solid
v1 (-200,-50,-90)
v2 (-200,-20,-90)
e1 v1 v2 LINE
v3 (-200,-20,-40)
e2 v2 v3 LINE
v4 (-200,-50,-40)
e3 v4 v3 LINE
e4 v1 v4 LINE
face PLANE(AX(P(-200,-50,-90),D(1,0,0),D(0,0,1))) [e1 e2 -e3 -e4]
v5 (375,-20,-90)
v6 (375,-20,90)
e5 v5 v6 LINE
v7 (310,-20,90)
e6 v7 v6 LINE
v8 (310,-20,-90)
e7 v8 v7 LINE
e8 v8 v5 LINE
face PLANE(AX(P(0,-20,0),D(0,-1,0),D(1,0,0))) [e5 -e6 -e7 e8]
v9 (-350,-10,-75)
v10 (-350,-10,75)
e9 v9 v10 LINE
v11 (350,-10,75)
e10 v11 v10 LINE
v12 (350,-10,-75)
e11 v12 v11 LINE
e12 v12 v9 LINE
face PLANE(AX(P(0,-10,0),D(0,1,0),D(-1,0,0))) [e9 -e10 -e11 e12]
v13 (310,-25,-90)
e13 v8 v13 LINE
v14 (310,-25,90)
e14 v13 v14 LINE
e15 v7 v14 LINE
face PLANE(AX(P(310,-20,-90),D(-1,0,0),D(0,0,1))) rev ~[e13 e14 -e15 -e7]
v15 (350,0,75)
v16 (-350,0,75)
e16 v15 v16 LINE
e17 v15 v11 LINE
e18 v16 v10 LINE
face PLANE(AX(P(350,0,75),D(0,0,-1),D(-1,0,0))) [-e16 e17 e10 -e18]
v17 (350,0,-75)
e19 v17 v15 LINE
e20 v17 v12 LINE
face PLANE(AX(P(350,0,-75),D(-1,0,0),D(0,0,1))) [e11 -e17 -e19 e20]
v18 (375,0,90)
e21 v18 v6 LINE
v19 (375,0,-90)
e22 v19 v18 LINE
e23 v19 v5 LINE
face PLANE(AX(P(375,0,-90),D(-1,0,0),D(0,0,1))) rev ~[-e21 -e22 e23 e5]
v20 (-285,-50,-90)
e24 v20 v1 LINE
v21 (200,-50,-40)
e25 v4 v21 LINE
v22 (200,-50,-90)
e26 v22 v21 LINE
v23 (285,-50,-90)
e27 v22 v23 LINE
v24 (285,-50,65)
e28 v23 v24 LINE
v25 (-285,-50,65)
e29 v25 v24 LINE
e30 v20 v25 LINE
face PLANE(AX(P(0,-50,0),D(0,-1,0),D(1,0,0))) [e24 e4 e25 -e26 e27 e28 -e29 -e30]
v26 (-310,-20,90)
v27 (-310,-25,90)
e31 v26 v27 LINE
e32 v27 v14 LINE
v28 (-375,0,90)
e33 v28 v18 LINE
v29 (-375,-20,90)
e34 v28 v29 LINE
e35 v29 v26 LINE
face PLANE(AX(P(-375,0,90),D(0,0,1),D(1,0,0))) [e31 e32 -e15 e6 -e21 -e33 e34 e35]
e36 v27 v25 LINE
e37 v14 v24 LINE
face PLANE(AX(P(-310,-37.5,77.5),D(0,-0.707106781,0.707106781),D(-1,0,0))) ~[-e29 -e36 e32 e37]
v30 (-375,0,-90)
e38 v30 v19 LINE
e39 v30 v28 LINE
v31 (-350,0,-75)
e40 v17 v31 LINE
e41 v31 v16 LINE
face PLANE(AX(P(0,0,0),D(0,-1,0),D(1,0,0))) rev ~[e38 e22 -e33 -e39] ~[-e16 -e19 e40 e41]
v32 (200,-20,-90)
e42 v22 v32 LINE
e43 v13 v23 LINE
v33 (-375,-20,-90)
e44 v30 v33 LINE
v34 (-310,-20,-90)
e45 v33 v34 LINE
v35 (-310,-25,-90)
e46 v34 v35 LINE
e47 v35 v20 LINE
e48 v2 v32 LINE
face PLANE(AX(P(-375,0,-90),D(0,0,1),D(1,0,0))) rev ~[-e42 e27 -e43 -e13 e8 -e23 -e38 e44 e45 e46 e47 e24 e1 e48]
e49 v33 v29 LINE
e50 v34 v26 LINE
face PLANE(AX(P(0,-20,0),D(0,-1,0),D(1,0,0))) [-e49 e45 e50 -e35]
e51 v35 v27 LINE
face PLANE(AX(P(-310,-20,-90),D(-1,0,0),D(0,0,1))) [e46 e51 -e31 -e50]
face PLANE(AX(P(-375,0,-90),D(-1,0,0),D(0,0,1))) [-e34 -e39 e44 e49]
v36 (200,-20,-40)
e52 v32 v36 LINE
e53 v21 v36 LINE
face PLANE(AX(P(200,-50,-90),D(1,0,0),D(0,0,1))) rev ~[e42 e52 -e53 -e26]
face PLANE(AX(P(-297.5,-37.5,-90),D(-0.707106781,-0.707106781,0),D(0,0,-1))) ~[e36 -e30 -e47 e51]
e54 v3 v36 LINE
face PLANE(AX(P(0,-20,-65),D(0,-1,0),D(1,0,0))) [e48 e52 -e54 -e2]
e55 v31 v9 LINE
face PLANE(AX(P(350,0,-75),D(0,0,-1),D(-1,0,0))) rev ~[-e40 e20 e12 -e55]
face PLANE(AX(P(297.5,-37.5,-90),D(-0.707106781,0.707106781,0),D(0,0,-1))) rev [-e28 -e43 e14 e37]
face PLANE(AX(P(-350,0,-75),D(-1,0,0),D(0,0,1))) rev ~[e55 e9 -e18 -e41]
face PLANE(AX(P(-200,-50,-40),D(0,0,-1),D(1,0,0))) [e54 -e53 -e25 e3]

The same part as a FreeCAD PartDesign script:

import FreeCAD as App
import Part
import Sketcher

V = App.Vector


def edges_at(feature, points):
    """Names of the edges that pass closest to the given points."""
    edges = feature.Shape.Edges
    near = lambda p: min(range(len(edges)), key=lambda i: edges[i].distToShape(Part.Vertex(*p))[0])
    return sorted({f"Edge{near(p) + 1}" for p in points})

doc = App.newDocument("Part")
params = doc.addObject("Spreadsheet::Sheet", "Params")
for row, (alias, value) in enumerate([
    ("sketch1_width", "750 mm"),
    ("sketch1_height", "180 mm"),
    ("pad1_length", "20 mm"),
    ("sketch2_width", "620 mm"),
    ("sketch2_height", "180 mm"),
    ("pad2_length", "30 mm"),
    ("chamfer_size", "25 mm"),
    ("sketch3_width", "400 mm"),
    ("sketch3_height", "50 mm"),
    ("pocket1_length", "30 mm"),
    ("sketch4_width", "700 mm"),
    ("sketch4_height", "150 mm"),
    ("pocket2_length", "10 mm"),
], start=1):
    params.set(f"A{row}", alias)
    params.set(f"B{row}", "=" + value)
    params.setAlias(f"B{row}", alias)

body = doc.addObject("PartDesign::Body", "Body")

sketch1 = body.newObject("Sketcher::SketchObject", "Sketch")
sketch1.AttachmentSupport = (doc.getObject("XZ_Plane"), [""])
sketch1.MapMode = "FlatFace"
sketch1.addGeometry([
    Part.LineSegment(V(-375, 90, 0), V(-375, -90, 0)),
    Part.LineSegment(V(-375, -90, 0), V(375, -90, 0)),
    Part.LineSegment(V(375, -90, 0), V(375, 90, 0)),
    Part.LineSegment(V(375, 90, 0), V(-375, 90, 0)),
], False)
sketch1.addConstraint([
    Sketcher.Constraint("Coincident", 0, 2, 1, 1),
    Sketcher.Constraint("Coincident", 1, 2, 2, 1),
    Sketcher.Constraint("Coincident", 2, 2, 3, 1),
    Sketcher.Constraint("Coincident", 3, 2, 0, 1),
    Sketcher.Constraint("Vertical", 0),
    Sketcher.Constraint("Horizontal", 1),
    Sketcher.Constraint("Vertical", 2),
    Sketcher.Constraint("Horizontal", 3),
    Sketcher.Constraint("Symmetric", 0, 2, 2, 2, -1, 1),
    Sketcher.Constraint("DistanceX", 1, 1, 1, 2, 750.0),
    Sketcher.Constraint("DistanceY", 0, 2, 0, 1, 180.0),
])
sketch1.setExpression("Constraints[9]", "Params.sketch1_width")
sketch1.setExpression("Constraints[10]", "Params.sketch1_height")
pad1 = body.newObject("PartDesign::Pad", "Pad")
pad1.Profile = sketch1
pad1.setExpression("Length", "Params.pad1_length")

sketch2 = body.newObject("Sketcher::SketchObject", "Sketch001")
sketch2.AttachmentSupport = (doc.getObject("XZ_Plane"), [""])
sketch2.MapMode = "FlatFace"
sketch2.AttachmentOffset = App.Placement(V(0, 0, 20), App.Rotation())
sketch2.addGeometry([
    Part.LineSegment(V(-310, 90, 0), V(-310, -90, 0)),
    Part.LineSegment(V(-310, -90, 0), V(310, -90, 0)),
    Part.LineSegment(V(310, -90, 0), V(310, 90, 0)),
    Part.LineSegment(V(310, 90, 0), V(-310, 90, 0)),
], False)
sketch2.addConstraint([
    Sketcher.Constraint("Coincident", 0, 2, 1, 1),
    Sketcher.Constraint("Coincident", 1, 2, 2, 1),
    Sketcher.Constraint("Coincident", 2, 2, 3, 1),
    Sketcher.Constraint("Coincident", 3, 2, 0, 1),
    Sketcher.Constraint("Vertical", 0),
    Sketcher.Constraint("Horizontal", 1),
    Sketcher.Constraint("Vertical", 2),
    Sketcher.Constraint("Horizontal", 3),
    Sketcher.Constraint("Symmetric", 0, 2, 2, 2, -1, 1),
    Sketcher.Constraint("DistanceX", 1, 1, 1, 2, 620.0),
    Sketcher.Constraint("DistanceY", 0, 2, 0, 1, 180.0),
])
sketch2.setExpression("Constraints[9]", "Params.sketch2_width")
sketch2.setExpression("Constraints[10]", "Params.sketch2_height")
pad2 = body.newObject("PartDesign::Pad", "Pad001")
pad2.Profile = sketch2
pad2.setExpression("Length", "Params.pad2_length")
doc.recompute()

chamfer = body.newObject("PartDesign::Chamfer", "Chamfer")
chamfer.Base = (pad2, edges_at(pad2, [(0, -50, 90), (-310, -50, 0), (310, -50, 0)]))
chamfer.setExpression("Size", "Params.chamfer_size")

sketch3 = body.newObject("Sketcher::SketchObject", "Sketch002")
sketch3.AttachmentSupport = (doc.getObject("XZ_Plane"), [""])
sketch3.MapMode = "FlatFace"
sketch3.AttachmentOffset = App.Placement(V(0, 0, 50), App.Rotation())
sketch3.addGeometry([
    Part.LineSegment(V(-200, -40, 0), V(-200, -90, 0)),
    Part.LineSegment(V(-200, -90, 0), V(200, -90, 0)),
    Part.LineSegment(V(200, -90, 0), V(200, -40, 0)),
    Part.LineSegment(V(200, -40, 0), V(-200, -40, 0)),
], False)
sketch3.addConstraint([
    Sketcher.Constraint("Coincident", 0, 2, 1, 1),
    Sketcher.Constraint("Coincident", 1, 2, 2, 1),
    Sketcher.Constraint("Coincident", 2, 2, 3, 1),
    Sketcher.Constraint("Coincident", 3, 2, 0, 1),
    Sketcher.Constraint("Vertical", 0),
    Sketcher.Constraint("Horizontal", 1),
    Sketcher.Constraint("Vertical", 2),
    Sketcher.Constraint("Horizontal", 3),
    Sketcher.Constraint("DistanceX", 1, 1, 1, 2, 400.0),
    Sketcher.Constraint("DistanceY", 0, 2, 0, 1, 50.0),
    Sketcher.Constraint("DistanceX", 0, 2, -1, 1, 200.0),
    Sketcher.Constraint("DistanceY", 0, 2, -1, 1, 90.0),
])
sketch3.setExpression("Constraints[8]", "Params.sketch3_width")
sketch3.setExpression("Constraints[9]", "Params.sketch3_height")
pocket1 = body.newObject("PartDesign::Pocket", "Pocket")
pocket1.Profile = sketch3
pocket1.setExpression("Length", "Params.pocket1_length")

sketch4 = body.newObject("Sketcher::SketchObject", "Sketch003")
sketch4.AttachmentSupport = (doc.getObject("XZ_Plane"), [""])
sketch4.MapMode = "FlatFace"
sketch4.addGeometry([
    Part.LineSegment(V(350, 75, 0), V(350, -75, 0)),
    Part.LineSegment(V(350, -75, 0), V(-350, -75, 0)),
    Part.LineSegment(V(-350, -75, 0), V(-350, 75, 0)),
    Part.LineSegment(V(-350, 75, 0), V(350, 75, 0)),
], False)
sketch4.addConstraint([
    Sketcher.Constraint("Coincident", 0, 2, 1, 1),
    Sketcher.Constraint("Coincident", 1, 2, 2, 1),
    Sketcher.Constraint("Coincident", 2, 2, 3, 1),
    Sketcher.Constraint("Coincident", 3, 2, 0, 1),
    Sketcher.Constraint("Vertical", 0),
    Sketcher.Constraint("Horizontal", 1),
    Sketcher.Constraint("Vertical", 2),
    Sketcher.Constraint("Horizontal", 3),
    Sketcher.Constraint("Symmetric", 0, 2, 2, 2, -1, 1),
    Sketcher.Constraint("DistanceX", 1, 2, 1, 1, 700.0),
    Sketcher.Constraint("DistanceY", 0, 2, 0, 1, 150.0),
])
sketch4.setExpression("Constraints[9]", "Params.sketch4_width")
sketch4.setExpression("Constraints[10]", "Params.sketch4_height")
pocket2 = body.newObject("PartDesign::Pocket", "Pocket001")
pocket2.Profile = sketch4
pocket2.setExpression("Length", "Params.pocket2_length")
pocket2.Reversed = True

doc.recompute()
